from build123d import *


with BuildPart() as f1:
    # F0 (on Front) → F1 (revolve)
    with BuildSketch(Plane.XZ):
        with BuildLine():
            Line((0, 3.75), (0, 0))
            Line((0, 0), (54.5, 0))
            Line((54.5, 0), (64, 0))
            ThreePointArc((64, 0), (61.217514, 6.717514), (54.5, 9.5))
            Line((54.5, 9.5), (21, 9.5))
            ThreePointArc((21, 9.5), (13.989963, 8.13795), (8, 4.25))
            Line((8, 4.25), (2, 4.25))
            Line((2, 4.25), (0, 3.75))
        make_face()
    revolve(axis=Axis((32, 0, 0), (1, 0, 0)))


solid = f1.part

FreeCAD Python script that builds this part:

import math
import FreeCAD as App
import Part
import Sketcher

V = App.Vector
Q = App.Units.Quantity

doc = App.newDocument("Part")
body = doc.addObject("PartDesign::Body", "Body")

# Sketch on XZ plane
sketch1 = body.newObject("Sketcher::SketchObject", "Sketch")
sketch1.AttachmentSupport = (doc.getObject("XZ_Plane"), [""])
sketch1.MapMode = "FlatFace"
sketch1.addGeometry(Part.LineSegment(V(0, 3.8, 0), V(0, 0, 0)), False)
sketch1.addGeometry(Part.LineSegment(V(0, 0, 0), V(64, 0, 0)), False)
sketch1.addGeometry(Part.ArcOfCircle(Part.Circle(V(54.5, 0, 0), V(0, 0, 1), 9.5), math.radians(0), math.radians(90)), False)
sketch1.addGeometry(Part.LineSegment(V(54.5, 9.5, 0), V(21, 9.5, 0)), False)
sketch1.addGeometry(Part.ArcOfCircle(Part.Circle(V(21, -9.2, 0), V(0, 0, 1), 18.7), math.radians(90), math.radians(134)), False)
sketch1.addGeometry(Part.LineSegment(V(8, 4.2, 0), V(2, 4.2, 0)), False)
sketch1.addGeometry(Part.LineSegment(V(2, 4.2, 0), V(0, 3.8, 0)), False)
sketch1.addConstraint(Sketcher.Constraint("Coincident", 0, 2, 1, 1))
sketch1.addConstraint(Sketcher.Constraint("Coincident", 1, 2, 2, 1))
sketch1.addConstraint(Sketcher.Constraint("Tangent", 2, 2, 3, 1))
sketch1.addConstraint(Sketcher.Constraint("Tangent", 3, 2, 4, 1))
sketch1.addConstraint(Sketcher.Constraint("Coincident", 4, 2, 5, 1))
sketch1.addConstraint(Sketcher.Constraint("Coincident", 5, 2, 6, 1))
sketch1.addConstraint(Sketcher.Constraint("Coincident", 6, 2, 0, 1))
sketch1.addConstraint(Sketcher.Constraint("Vertical", 0))
sketch1.addConstraint(Sketcher.Constraint("Horizontal", 1))
sketch1.addConstraint(Sketcher.Constraint("Horizontal", 3))
sketch1.addConstraint(Sketcher.Constraint("Horizontal", 5))
sketch1.addConstraint(Sketcher.Constraint("Coincident", 0, 2, -1, 1))
sketch1.addConstraint(Sketcher.Constraint("PointOnObject", 2, 3, -1))
sketch1.addConstraint(Sketcher.Constraint("Radius", 2, Q("9.500001 mm")))
sketch1.addConstraint(Sketcher.Constraint("DistanceX", 1, 1, 1, 2, Q("64 mm")))
sketch1.addConstraint(Sketcher.Constraint("DistanceX", 5, 2, 5, 1, Q("6 mm")))
sketch1.addConstraint(Sketcher.Constraint("DistanceX", 3, 2, 3, 1, Q("33.5 mm")))
sketch1.addConstraint(Sketcher.Constraint("DistanceX", -1, 1, 4, 2, Q("8 mm")))
sketch1.addConstraint(Sketcher.Constraint("DistanceY", 0, 2, 0, 1, Q("3.75 mm")))
sketch1.addConstraint(Sketcher.Constraint("DistanceY", 6, 2, 5, 2, Q("0.5 mm")))
revolution = body.newObject("PartDesign::Revolution", "Revolution")
revolution.Profile = sketch1
revolution.ReferenceAxis = (sketch1, ["H_Axis"])
revolution.Angle = 360

doc.recompute()
